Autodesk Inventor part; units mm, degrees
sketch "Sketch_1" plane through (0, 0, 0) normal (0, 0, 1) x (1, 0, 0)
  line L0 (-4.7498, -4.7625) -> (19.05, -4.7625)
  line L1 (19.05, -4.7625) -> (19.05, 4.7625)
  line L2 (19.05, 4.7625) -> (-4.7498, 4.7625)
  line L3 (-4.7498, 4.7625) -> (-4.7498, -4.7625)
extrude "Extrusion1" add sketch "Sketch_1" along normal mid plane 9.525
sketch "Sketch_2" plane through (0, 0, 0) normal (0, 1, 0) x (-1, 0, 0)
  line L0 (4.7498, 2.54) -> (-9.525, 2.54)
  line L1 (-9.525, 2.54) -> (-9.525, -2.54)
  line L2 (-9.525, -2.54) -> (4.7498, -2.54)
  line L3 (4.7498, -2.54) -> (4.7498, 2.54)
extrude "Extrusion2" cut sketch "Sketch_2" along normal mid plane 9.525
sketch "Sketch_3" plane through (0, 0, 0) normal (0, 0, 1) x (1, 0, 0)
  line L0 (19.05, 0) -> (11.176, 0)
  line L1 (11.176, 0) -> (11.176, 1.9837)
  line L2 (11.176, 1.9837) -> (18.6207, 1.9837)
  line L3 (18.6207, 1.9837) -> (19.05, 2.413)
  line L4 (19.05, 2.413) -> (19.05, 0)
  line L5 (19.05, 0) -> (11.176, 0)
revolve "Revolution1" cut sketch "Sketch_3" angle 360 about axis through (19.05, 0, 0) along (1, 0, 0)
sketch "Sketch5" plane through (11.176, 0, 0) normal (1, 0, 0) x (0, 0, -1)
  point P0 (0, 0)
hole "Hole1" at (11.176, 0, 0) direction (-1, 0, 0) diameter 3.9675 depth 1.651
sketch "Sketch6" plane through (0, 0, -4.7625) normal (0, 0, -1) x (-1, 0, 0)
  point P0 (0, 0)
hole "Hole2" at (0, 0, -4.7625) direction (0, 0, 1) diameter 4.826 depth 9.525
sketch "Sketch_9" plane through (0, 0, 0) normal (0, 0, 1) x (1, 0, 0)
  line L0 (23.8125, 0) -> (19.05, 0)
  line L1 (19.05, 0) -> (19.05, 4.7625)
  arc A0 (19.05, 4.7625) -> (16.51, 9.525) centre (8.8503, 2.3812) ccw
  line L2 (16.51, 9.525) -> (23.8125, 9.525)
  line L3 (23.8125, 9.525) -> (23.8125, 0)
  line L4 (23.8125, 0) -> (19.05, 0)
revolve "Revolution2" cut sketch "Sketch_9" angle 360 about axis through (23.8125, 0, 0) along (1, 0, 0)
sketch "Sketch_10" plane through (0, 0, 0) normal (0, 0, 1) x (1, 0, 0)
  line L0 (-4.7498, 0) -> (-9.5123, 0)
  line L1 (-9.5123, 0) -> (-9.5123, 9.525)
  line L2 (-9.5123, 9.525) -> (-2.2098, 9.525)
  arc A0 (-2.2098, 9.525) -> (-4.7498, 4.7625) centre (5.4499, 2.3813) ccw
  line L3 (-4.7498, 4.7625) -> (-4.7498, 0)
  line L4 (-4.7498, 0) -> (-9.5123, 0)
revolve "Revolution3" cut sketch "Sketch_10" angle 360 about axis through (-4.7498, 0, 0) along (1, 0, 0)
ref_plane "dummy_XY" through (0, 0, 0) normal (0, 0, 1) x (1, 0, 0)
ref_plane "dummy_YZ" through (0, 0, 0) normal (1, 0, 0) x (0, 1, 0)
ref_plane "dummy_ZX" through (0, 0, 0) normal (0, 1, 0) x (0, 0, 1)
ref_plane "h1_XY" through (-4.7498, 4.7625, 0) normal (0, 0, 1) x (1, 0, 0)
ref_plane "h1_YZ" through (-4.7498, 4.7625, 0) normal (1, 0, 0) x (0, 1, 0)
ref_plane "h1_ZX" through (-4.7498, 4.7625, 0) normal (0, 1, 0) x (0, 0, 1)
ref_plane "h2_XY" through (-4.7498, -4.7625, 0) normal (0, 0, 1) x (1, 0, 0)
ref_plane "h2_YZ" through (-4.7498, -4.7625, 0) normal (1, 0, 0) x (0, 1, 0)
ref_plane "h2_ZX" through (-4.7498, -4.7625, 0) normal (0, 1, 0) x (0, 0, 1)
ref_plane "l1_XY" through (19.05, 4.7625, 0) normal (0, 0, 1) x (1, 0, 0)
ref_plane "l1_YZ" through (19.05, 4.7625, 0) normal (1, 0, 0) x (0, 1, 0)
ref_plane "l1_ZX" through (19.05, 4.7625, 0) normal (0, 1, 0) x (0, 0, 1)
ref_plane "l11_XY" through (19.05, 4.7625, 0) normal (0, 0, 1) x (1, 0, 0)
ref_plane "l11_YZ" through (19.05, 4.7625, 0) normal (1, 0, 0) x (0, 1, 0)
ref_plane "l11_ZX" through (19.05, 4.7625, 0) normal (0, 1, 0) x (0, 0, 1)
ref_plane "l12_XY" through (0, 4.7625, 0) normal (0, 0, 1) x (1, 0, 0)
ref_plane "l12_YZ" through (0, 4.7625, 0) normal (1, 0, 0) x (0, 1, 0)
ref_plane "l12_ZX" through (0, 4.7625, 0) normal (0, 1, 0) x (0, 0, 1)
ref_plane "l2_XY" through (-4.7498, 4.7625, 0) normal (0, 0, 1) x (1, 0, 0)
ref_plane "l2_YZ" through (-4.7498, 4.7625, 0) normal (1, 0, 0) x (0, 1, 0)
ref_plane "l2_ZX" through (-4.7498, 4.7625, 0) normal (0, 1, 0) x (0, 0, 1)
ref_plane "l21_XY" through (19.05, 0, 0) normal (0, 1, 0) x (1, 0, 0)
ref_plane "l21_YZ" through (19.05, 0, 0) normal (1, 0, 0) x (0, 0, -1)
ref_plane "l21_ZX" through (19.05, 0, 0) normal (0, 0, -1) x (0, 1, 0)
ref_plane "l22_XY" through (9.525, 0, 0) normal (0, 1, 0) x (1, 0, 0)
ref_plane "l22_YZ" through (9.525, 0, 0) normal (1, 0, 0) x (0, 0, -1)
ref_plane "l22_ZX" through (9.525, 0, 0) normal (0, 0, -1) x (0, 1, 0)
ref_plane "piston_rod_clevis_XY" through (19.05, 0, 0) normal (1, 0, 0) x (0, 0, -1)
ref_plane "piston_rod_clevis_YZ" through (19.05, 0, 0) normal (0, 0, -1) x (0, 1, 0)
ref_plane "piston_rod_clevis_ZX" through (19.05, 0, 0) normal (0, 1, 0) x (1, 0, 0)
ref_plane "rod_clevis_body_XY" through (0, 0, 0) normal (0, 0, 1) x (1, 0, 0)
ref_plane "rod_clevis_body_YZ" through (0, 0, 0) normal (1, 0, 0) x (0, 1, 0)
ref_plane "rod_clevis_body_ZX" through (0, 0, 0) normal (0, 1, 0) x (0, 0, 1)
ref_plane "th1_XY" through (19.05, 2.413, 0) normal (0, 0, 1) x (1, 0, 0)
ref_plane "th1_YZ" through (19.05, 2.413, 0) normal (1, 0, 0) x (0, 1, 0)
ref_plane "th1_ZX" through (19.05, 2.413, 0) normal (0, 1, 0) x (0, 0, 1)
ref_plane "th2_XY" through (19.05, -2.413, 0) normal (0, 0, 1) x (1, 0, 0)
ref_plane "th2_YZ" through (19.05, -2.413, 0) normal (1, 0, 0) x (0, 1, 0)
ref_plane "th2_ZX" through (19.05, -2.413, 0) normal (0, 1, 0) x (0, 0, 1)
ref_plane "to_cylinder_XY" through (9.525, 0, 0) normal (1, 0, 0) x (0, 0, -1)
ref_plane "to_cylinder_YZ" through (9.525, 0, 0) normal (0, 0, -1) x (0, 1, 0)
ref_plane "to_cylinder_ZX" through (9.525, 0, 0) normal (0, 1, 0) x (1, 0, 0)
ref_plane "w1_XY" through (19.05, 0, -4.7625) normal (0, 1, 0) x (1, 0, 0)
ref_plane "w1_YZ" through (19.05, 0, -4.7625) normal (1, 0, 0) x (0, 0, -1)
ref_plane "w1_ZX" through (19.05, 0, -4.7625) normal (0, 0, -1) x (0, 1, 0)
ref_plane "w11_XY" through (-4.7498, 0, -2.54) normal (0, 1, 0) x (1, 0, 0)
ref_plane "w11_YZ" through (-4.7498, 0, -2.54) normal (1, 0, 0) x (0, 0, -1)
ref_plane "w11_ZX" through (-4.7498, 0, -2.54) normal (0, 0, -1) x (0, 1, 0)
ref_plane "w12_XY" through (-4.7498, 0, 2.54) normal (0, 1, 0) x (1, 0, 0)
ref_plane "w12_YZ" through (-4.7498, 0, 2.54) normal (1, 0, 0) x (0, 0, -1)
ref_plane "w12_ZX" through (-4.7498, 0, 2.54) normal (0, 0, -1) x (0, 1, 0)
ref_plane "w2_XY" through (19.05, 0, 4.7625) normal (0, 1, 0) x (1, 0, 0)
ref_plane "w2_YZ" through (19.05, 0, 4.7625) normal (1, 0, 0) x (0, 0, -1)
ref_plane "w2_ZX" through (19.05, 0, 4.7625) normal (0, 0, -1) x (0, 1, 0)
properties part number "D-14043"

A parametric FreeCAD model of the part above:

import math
import FreeCAD as App
import Part
import Sketcher

V = App.Vector
Q = App.Units.Quantity

doc = App.newDocument("Part")
body = doc.addObject("PartDesign::Body", "Body")

# Sketch on XY plane
sketch1 = body.newObject("Sketcher::SketchObject", "Sketch")
sketch1.AttachmentSupport = (doc.getObject("XY_Plane"), [""])
sketch1.MapMode = "FlatFace"
sketch1.addGeometry([
    Part.LineSegment(V(-4.7498, 4.7625, 0), V(-4.7498, -4.7625, 0)),
    Part.LineSegment(V(-4.7498, -4.7625, 0), V(19.05, -4.7625, 0)),
    Part.LineSegment(V(19.05, -4.7625, 0), V(19.05, 4.7625, 0)),
    Part.LineSegment(V(19.05, 4.7625, 0), V(-4.7498, 4.7625, 0)),
], False)
sketch1.addConstraint([
    Sketcher.Constraint("Coincident", 0, 2, 1, 1),
    Sketcher.Constraint("Coincident", 1, 2, 2, 1),
    Sketcher.Constraint("Coincident", 2, 2, 3, 1),
    Sketcher.Constraint("Coincident", 3, 2, 0, 1),
    Sketcher.Constraint("Vertical", 0),
    Sketcher.Constraint("Horizontal", 1),
    Sketcher.Constraint("Vertical", 2),
    Sketcher.Constraint("Horizontal", 3),
    Sketcher.Constraint("DistanceX", 1, 1, 1, 2, Q("0.937 in")),
    Sketcher.Constraint("DistanceY", 0, 2, 0, 1, Q("0.375 in")),
    Sketcher.Constraint("DistanceX", -1, 1, 1, 2, Q("0.75 in")),
    Sketcher.Constraint("DistanceY", 0, 2, -1, 1, Q("0.1875 in")),
])
pad1 = body.newObject("PartDesign::Pad", "Pad")
pad1.Profile = sketch1
pad1.Length = Q("0.375 in")
pad1.Midplane = True

# Sketch on XZ plane
sketch2 = body.newObject("Sketcher::SketchObject", "Sketch001")
sketch2.AttachmentSupport = (doc.getObject("XZ_Plane"), [""])
sketch2.MapMode = "FlatFace"
sketch2.addGeometry([
    Part.LineSegment(V(-4.7498, -2.54, 0), V(-4.7498, 2.54, 0)),
    Part.LineSegment(V(-4.7498, 2.54, 0), V(9.525, 2.54, 0)),
    Part.LineSegment(V(9.525, 2.54, 0), V(9.525, -2.54, 0)),
    Part.LineSegment(V(9.525, -2.54, 0), V(-4.7498, -2.54, 0)),
], False)
sketch2.addConstraint([
    Sketcher.Constraint("Coincident", 0, 2, 1, 1),
    Sketcher.Constraint("Coincident", 1, 2, 2, 1),
    Sketcher.Constraint("Coincident", 2, 2, 3, 1),
    Sketcher.Constraint("Coincident", 3, 2, 0, 1),
    Sketcher.Constraint("Vertical", 0),
    Sketcher.Constraint("Horizontal", 1),
    Sketcher.Constraint("Vertical", 2),
    Sketcher.Constraint("Horizontal", 3),
    Sketcher.Constraint("DistanceY", 0, 1, 0, 2, Q("0.2 in")),
    Sketcher.Constraint("DistanceY", -1, 1, 0, 2, Q("0.1 in")),
    Sketcher.Constraint("DistanceX", 1, 1, 1, 2, Q("0.562 in")),
    Sketcher.Constraint("DistanceX", 0, 2, -1, 1, Q("0.187 in")),
])
pocket1 = body.newObject("PartDesign::Pocket", "Pocket")
pocket1.Profile = sketch2
pocket1.Length = Q("0.375 in")
pocket1.Midplane = True

# Sketch on XY plane
sketch3 = body.newObject("Sketcher::SketchObject", "Sketch002")
sketch3.AttachmentSupport = (doc.getObject("XY_Plane"), [""])
sketch3.MapMode = "FlatFace"
sketch3.addGeometry([
    Part.LineSegment(V(11.176, 0, 0), V(19.05, 0, 0)),  # 0
    Part.LineSegment(V(19.05, 0, 0), V(19.05, 2.413, 0)),  # 1
    Part.LineSegment(V(19.05, 2.413, 0), V(18.6207, 1.9837, 0)),  # 2
    Part.LineSegment(V(18.6207, 1.9837, 0), V(11.176, 1.9837, 0)),  # 3
    Part.LineSegment(V(11.176, 1.9837, 0), V(11.176, 0, 0)),  # 4
], False)
sketch3.addConstraint([
    Sketcher.Constraint("Coincident", 0, 2, 1, 1),
    Sketcher.Constraint("Coincident", 1, 2, 2, 1),
    Sketcher.Constraint("Coincident", 2, 2, 3, 1),
    Sketcher.Constraint("Coincident", 3, 2, 4, 1),
    Sketcher.Constraint("Coincident", 4, 2, 0, 1),
    Sketcher.Constraint("Horizontal", 0),
    Sketcher.Constraint("Vertical", 1),
    Sketcher.Constraint("Horizontal", 3),
    Sketcher.Constraint("Vertical", 4),
    Sketcher.Constraint("PointOnObject", 0, 2, -1),
    Sketcher.Constraint("Angle", 2, Q("-135 deg")),
    Sketcher.Constraint("DistanceX", 0, 1, 0, 2, Q("0.31 in")),
    Sketcher.Constraint("DistanceY", 1, 1, 1, 2, Q("0.095 in")),
    Sketcher.Constraint("DistanceX", -1, 1, 0, 2, Q("0.75 in")),
    Sketcher.Constraint("DistanceX", 3, 2, 3, 1, Q("0.2931 in")),
])
groove = body.newObject("PartDesign::Groove", "Groove")
groove.Profile = sketch3
groove.ReferenceAxis = (sketch3, ["H_Axis"])
groove.Angle = 360

# Sketch on YZ plane
sketch4 = body.newObject("Sketcher::SketchObject", "Sketch003")
sketch4.AttachmentSupport = (doc.getObject("YZ_Plane"), [""])
sketch4.MapMode = "FlatFace"
sketch4.AttachmentOffset = App.Placement(V(0, 0, 0.44 * 25.4), App.Rotation())
sketch4.addGeometry(Part.Circle(V(0, 0, 0), V(0, 0, 1), 1.98375), False)
sketch4.addConstraint([
    Sketcher.Constraint("Coincident", 0, 3, -1, 1),
    Sketcher.Constraint("Diameter", 0, Q("0.1562 in")),
])
doc.recompute()
hole = body.newObject("PartDesign::Hole", "Hole")
hole.Profile = sketch4
hole.ThreadType = "None"
hole.Diameter = Q("0.1562008 in")
hole.DepthType = "Dimension"
hole.Depth = Q("0.065 in")
hole.DrillPoint = "Flat"

# Sketch on XY plane
sketch5 = body.newObject("Sketcher::SketchObject", "Sketch004")
sketch5.AttachmentSupport = (doc.getObject("XY_Plane"), [""])
sketch5.MapMode = "FlatFace"
sketch5.AttachmentOffset = App.Placement(V(0, 0, -0.1875 * 25.4), App.Rotation())
sketch5.addGeometry(Part.Circle(V(0, 0, 0), V(0, 0, 1), 2.413), False)
sketch5.addConstraint([
    Sketcher.Constraint("Coincident", 0, 3, -1, 1),
    Sketcher.Constraint("Diameter", 0, Q("0.19 in")),
])
doc.recompute()
hole2 = body.newObject("PartDesign::Hole", "Hole001")
hole2.Profile = sketch5
hole2.ThreadType = "None"
hole2.Diameter = Q("0.19 in")
hole2.DepthType = "Dimension"
hole2.Depth = Q("0.375 in")
hole2.DrillPoint = "Flat"
hole2.Reversed = True

# Sketch on XY plane
sketch6 = body.newObject("Sketcher::SketchObject", "Sketch005")
sketch6.AttachmentSupport = (doc.getObject("XY_Plane"), [""])
sketch6.MapMode = "FlatFace"
sketch6.addGeometry([
    Part.LineSegment(V(19.05, 0, 0), V(23.8125, 0, 0)),  # 0
    Part.LineSegment(V(23.8125, 0, 0), V(23.8125, 9.525, 0)),  # 1
    Part.LineSegment(V(23.8125, 9.525, 0), V(16.51, 9.525, 0)),  # 2
    Part.ArcOfCircle(Part.Circle(V(8.8503, 2.3812, 0), V(0, 0, 1), 10.47399), math.radians(13.141321), math.radians(43.004057)),  # 3
    Part.LineSegment(V(19.05, 4.7625, 0), V(19.05, 0, 0)),  # 4
], False)
sketch6.addConstraint([
    Sketcher.Constraint("Coincident", 0, 2, 1, 1),
    Sketcher.Constraint("Coincident", 1, 2, 2, 1),
    Sketcher.Constraint("Coincident", 2, 2, 3, 2),
    Sketcher.Constraint("Coincident", 3, 1, 4, 1),
    Sketcher.Constraint("Coincident", 4, 2, 0, 1),
    Sketcher.Constraint("Horizontal", 0),
    Sketcher.Constraint("Vertical", 1),
    Sketcher.Constraint("Horizontal", 2),
    Sketcher.Constraint("Vertical", 4),
    Sketcher.Constraint("PointOnObject", 0, 2, -1),
    Sketcher.Constraint("Equal", 0, 4),
    Sketcher.Constraint("DistanceX", 2, 2, 3, 1, Q("0.1 in")),
    Sketcher.Constraint("DistanceX", 0, 1, 0, 2, Q("0.1875 in")),
    Sketcher.Constraint("DistanceY", 1, 1, 1, 2, Q("0.375 in")),
    Sketcher.Constraint("DistanceX", -1, 1, 2, 2, Q("0.65 in")),
    Sketcher.Constraint("Radius", 3, 10.474),
])
groove2 = body.newObject("PartDesign::Groove", "Groove001")
groove2.Profile = sketch6
groove2.ReferenceAxis = (sketch6, ["H_Axis"])
groove2.Angle = 360

# Sketch on XY plane
sketch7 = body.newObject("Sketcher::SketchObject", "Sketch006")
sketch7.AttachmentSupport = (doc.getObject("XY_Plane"), [""])
sketch7.MapMode = "FlatFace"
sketch7.addGeometry([
    Part.LineSegment(V(-9.5123, 0, 0), V(-4.7498, 0, 0)),  # 0
    Part.LineSegment(V(-4.7498, 0, 0), V(-4.7498, 4.7625, 0)),  # 1
    Part.ArcOfCircle(Part.Circle(V(5.4499, 2.3813, 0), V(0, 0, 1), 10.473942), math.radians(136.996343), math.radians(166.859212)),  # 2
    Part.LineSegment(V(-2.2098, 9.525, 0), V(-9.5123, 9.525, 0)),  # 3
    Part.LineSegment(V(-9.5123, 9.525, 0), V(-9.5123, 0, 0)),  # 4
], False)
sketch7.addConstraint([
    Sketcher.Constraint("Coincident", 0, 2, 1, 1),
    Sketcher.Constraint("Coincident", 1, 2, 2, 2),
    Sketcher.Constraint("Coincident", 2, 1, 3, 1),
    Sketcher.Constraint("Coincident", 3, 2, 4, 1),
    Sketcher.Constraint("Coincident", 4, 2, 0, 1),
    Sketcher.Constraint("Horizontal", 0),
    Sketcher.Constraint("Vertical", 1),
    Sketcher.Constraint("Horizontal", 3),
    Sketcher.Constraint("Vertical", 4),
    Sketcher.Constraint("PointOnObject", 0, 2, -1),
    Sketcher.Constraint("Equal", 0, 1),
    Sketcher.Constraint("DistanceX", 1, 2, 2, 1, Q("0.1 in")),
    Sketcher.Constraint("DistanceX", 0, 1, 0, 2, Q("0.1875 in")),
    Sketcher.Constraint("DistanceY", 4, 2, 4, 1, Q("0.375 in")),
    Sketcher.Constraint("Radius", 2, 10.474),
    Sketcher.Constraint("DistanceX", 0, 2, -1, 1, Q("0.187 in")),
])
groove3 = body.newObject("PartDesign::Groove", "Groove002")
groove3.Profile = sketch7
groove3.ReferenceAxis = (sketch7, ["H_Axis"])
groove3.Angle = 360

doc.recompute()
